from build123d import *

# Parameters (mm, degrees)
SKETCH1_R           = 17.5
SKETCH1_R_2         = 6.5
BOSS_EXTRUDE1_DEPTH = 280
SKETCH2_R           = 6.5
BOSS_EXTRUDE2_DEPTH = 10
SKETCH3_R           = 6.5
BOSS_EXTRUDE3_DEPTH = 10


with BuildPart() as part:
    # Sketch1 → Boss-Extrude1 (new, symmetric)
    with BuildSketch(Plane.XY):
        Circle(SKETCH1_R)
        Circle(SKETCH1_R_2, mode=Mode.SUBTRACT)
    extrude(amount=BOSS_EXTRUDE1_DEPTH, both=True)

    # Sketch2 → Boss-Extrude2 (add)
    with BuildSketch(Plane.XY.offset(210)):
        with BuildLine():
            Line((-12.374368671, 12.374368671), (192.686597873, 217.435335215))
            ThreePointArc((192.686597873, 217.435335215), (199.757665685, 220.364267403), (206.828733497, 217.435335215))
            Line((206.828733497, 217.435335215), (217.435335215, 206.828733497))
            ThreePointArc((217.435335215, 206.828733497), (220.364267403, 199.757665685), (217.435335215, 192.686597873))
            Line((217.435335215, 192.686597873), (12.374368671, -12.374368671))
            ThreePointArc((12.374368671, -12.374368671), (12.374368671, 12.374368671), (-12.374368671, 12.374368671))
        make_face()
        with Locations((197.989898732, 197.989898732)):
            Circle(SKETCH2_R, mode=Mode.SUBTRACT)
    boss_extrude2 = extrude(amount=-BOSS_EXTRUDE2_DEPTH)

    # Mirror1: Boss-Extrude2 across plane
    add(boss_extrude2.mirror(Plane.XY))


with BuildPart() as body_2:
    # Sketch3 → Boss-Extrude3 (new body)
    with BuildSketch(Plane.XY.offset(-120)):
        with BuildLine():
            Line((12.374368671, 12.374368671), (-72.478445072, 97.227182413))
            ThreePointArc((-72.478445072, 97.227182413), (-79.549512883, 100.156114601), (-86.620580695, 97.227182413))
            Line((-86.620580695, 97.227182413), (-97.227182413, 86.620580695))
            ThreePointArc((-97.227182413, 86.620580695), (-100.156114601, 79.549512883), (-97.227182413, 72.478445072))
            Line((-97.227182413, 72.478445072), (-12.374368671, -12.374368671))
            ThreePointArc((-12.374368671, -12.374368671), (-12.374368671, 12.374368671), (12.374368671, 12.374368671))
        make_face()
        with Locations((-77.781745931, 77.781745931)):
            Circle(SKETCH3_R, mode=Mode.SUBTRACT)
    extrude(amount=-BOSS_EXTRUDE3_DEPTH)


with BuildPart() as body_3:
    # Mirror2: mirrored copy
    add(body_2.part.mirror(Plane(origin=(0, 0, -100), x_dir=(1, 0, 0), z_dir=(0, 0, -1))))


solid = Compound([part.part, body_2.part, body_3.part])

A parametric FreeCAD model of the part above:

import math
import FreeCAD as App
import Part
import Sketcher
from FreeCAD import Vector

doc = App.newDocument("Part")
body = doc.addObject("PartDesign::Body", "Body")

# Sketch on XY plane
sketch1 = body.newObject("Sketcher::SketchObject", "Sketch")
sketch1.AttachmentSupport = (doc.getObject("XY_Plane"), [""])
sketch1.MapMode = "FlatFace"
sketch1.addGeometry([
    Part.Circle(Vector(0, 0, 0), Vector(0, 0, 1), 18),
    Part.Circle(Vector(0, 0, 0), Vector(0, 0, 1), 6),
], False)
sketch1.addConstraint([
    Sketcher.Constraint("Coincident", 0, 3, -1, 1),
    Sketcher.Constraint("Coincident", 1, 3, -1, 1),
    Sketcher.Constraint("Diameter", 0, 35.0),
    Sketcher.Constraint("Diameter", 1, 13.0),
])
pad1 = body.newObject("PartDesign::Pad", "Pad")
pad1.Profile = sketch1
pad1.Length = 560
pad1.Midplane = True

# Sketch on XY plane
sketch2 = body.newObject("Sketcher::SketchObject", "Sketch001")
sketch2.AttachmentSupport = (doc.getObject("XY_Plane"), [""])
sketch2.MapMode = "FlatFace"
sketch2.AttachmentOffset = App.Placement(Vector(0, 0, 210), App.Rotation())
sketch2.addGeometry([
    Part.LineSegment(Vector(193, 217, 0), Vector(-12, 12, 0)),  # 0
    Part.ArcOfCircle(Part.Circle(Vector(0, 0, 0), Vector(0, 0, 1), 18), math.radians(-45), math.radians(135)),  # 1
    Part.LineSegment(Vector(12, -12, 0), Vector(217, 193, 0)),  # 2
    Part.ArcOfCircle(Part.Circle(Vector(210, 200, 0), Vector(0, 0, 1), 10), math.radians(-45), math.radians(45)),  # 3
    Part.LineSegment(Vector(217, 207, 0), Vector(207, 217, 0)),  # 4
    Part.ArcOfCircle(Part.Circle(Vector(200, 210, 0), Vector(0, 0, 1), 10), math.radians(45), math.radians(135)),  # 5
    Part.Circle(Vector(198, 198, 0), Vector(0, 0, 1), 6),  # 6
], False)
sketch2.addConstraint([
    Sketcher.Constraint("Tangent", 0, 2, 1, 2),
    Sketcher.Constraint("Tangent", 1, 1, 2, 1),
    Sketcher.Constraint("Tangent", 2, 2, 3, 1),
    Sketcher.Constraint("Tangent", 3, 2, 4, 1),
    Sketcher.Constraint("Tangent", 4, 2, 5, 1),
    Sketcher.Constraint("Tangent", 5, 2, 0, 1),
    Sketcher.Constraint("Coincident", 1, 3, -1, 1),
    Sketcher.Constraint("Equal", 3, 5),
    Sketcher.Constraint("Parallel", 0, 2),
    Sketcher.Constraint("Perpendicular", 2, 4),
    Sketcher.Constraint("Horizontal", 4, 2, 5, 2),
    Sketcher.Constraint("Diameter", 6, 13.0),
    Sketcher.Constraint("Radius", 3, 10.0),
    Sketcher.Constraint("Radius", 1, 17.5),
    Sketcher.Constraint("Distance", 0, 290.0),
    Sketcher.Constraint("DistanceX", -1, 1, 6, 3, 197.989899),
    Sketcher.Constraint("DistanceY", -1, 1, 6, 3, 197.989899),
])
pad2 = body.newObject("PartDesign::Pad", "Pad001")
pad2.Profile = sketch2
pad2.Length = 10
pad2.Reversed = True
doc.recompute()

mirrored = body.newObject("PartDesign::Mirrored", "Mirrored")
mirrored.Originals = [pad2]
mirrored.MirrorPlane = (doc.getObject("XY_Plane"), [""])
body.Tip = mirrored
body2 = doc.addObject("PartDesign::Body", "Body001")

# Sketch on XY plane
sketch3 = body2.newObject("Sketcher::SketchObject", "Sketch002")
sketch3.AttachmentSupport = (doc.getObject("XY_Plane001"), [""])
sketch3.MapMode = "FlatFace"
sketch3.AttachmentOffset = App.Placement(Vector(0, 0, -120), App.Rotation())
sketch3.addGeometry([
    Part.LineSegment(Vector(12, 12, 0), Vector(-72, 97, 0)),  # 0
    Part.ArcOfCircle(Part.Circle(Vector(-80, 90, 0), Vector(0, 0, 1), 10), math.radians(45), math.radians(135)),  # 1
    Part.LineSegment(Vector(-87, 97, 0), Vector(-97, 87, 0)),  # 2
    Part.ArcOfCircle(Part.Circle(Vector(-90, 80, 0), Vector(0, 0, 1), 10), math.radians(135), math.radians(225)),  # 3
    Part.LineSegment(Vector(-97, 72, 0), Vector(-12, -12, 0)),  # 4
    Part.ArcOfCircle(Part.Circle(Vector(0, 0, 0), Vector(0, 0, 1), 18), math.radians(45), math.radians(225)),  # 5
    Part.Circle(Vector(-78, 78, 0), Vector(0, 0, 1), 6),  # 6
], False)
sketch3.addConstraint([
    Sketcher.Constraint("Tangent", 0, 2, 1, 1),
    Sketcher.Constraint("Tangent", 1, 2, 2, 1),
    Sketcher.Constraint("Tangent", 2, 2, 3, 1),
    Sketcher.Constraint("Tangent", 3, 2, 4, 1),
    Sketcher.Constraint("Tangent", 4, 2, 5, 2),
    Sketcher.Constraint("Tangent", 5, 1, 0, 1),
    Sketcher.Constraint("Coincident", 5, 3, -1, 1),
    Sketcher.Constraint("Equal", 1, 3),
    Sketcher.Constraint("Perpendicular", 0, 2),
    Sketcher.Constraint("Perpendicular", 2, 4),
    Sketcher.Constraint("Horizontal", 0, 2, 1, 2),
    Sketcher.Constraint("Diameter", 6, 13.0),
    Sketcher.Constraint("Radius", 1, 10.0),
    Sketcher.Constraint("Radius", 5, 17.5),
    Sketcher.Constraint("Distance", 0, 120.0),
    Sketcher.Constraint("DistanceX", 6, 3, 0, 2, 5.303301),
    Sketcher.Constraint("DistanceY", 3, 2, 6, 3, 5.303301),
])
pad3 = body2.newObject("PartDesign::Pad", "Pad002")
pad3.Profile = sketch3
pad3.Length = 10
pad3.Reversed = True
body3 = doc.addObject("PartDesign::Body", "Body002")
doc.recompute()

mirroring = doc.addObject("Part::Mirroring", "Mirroring")
mirroring.Source = body2
mirroring.Base = Vector(0, 0, -100)
mirroring.Normal = Vector(0, 0, -1)
body3.BaseFeature = mirroring
doc.recompute()
mirroring.Visibility = False

doc.recompute()
